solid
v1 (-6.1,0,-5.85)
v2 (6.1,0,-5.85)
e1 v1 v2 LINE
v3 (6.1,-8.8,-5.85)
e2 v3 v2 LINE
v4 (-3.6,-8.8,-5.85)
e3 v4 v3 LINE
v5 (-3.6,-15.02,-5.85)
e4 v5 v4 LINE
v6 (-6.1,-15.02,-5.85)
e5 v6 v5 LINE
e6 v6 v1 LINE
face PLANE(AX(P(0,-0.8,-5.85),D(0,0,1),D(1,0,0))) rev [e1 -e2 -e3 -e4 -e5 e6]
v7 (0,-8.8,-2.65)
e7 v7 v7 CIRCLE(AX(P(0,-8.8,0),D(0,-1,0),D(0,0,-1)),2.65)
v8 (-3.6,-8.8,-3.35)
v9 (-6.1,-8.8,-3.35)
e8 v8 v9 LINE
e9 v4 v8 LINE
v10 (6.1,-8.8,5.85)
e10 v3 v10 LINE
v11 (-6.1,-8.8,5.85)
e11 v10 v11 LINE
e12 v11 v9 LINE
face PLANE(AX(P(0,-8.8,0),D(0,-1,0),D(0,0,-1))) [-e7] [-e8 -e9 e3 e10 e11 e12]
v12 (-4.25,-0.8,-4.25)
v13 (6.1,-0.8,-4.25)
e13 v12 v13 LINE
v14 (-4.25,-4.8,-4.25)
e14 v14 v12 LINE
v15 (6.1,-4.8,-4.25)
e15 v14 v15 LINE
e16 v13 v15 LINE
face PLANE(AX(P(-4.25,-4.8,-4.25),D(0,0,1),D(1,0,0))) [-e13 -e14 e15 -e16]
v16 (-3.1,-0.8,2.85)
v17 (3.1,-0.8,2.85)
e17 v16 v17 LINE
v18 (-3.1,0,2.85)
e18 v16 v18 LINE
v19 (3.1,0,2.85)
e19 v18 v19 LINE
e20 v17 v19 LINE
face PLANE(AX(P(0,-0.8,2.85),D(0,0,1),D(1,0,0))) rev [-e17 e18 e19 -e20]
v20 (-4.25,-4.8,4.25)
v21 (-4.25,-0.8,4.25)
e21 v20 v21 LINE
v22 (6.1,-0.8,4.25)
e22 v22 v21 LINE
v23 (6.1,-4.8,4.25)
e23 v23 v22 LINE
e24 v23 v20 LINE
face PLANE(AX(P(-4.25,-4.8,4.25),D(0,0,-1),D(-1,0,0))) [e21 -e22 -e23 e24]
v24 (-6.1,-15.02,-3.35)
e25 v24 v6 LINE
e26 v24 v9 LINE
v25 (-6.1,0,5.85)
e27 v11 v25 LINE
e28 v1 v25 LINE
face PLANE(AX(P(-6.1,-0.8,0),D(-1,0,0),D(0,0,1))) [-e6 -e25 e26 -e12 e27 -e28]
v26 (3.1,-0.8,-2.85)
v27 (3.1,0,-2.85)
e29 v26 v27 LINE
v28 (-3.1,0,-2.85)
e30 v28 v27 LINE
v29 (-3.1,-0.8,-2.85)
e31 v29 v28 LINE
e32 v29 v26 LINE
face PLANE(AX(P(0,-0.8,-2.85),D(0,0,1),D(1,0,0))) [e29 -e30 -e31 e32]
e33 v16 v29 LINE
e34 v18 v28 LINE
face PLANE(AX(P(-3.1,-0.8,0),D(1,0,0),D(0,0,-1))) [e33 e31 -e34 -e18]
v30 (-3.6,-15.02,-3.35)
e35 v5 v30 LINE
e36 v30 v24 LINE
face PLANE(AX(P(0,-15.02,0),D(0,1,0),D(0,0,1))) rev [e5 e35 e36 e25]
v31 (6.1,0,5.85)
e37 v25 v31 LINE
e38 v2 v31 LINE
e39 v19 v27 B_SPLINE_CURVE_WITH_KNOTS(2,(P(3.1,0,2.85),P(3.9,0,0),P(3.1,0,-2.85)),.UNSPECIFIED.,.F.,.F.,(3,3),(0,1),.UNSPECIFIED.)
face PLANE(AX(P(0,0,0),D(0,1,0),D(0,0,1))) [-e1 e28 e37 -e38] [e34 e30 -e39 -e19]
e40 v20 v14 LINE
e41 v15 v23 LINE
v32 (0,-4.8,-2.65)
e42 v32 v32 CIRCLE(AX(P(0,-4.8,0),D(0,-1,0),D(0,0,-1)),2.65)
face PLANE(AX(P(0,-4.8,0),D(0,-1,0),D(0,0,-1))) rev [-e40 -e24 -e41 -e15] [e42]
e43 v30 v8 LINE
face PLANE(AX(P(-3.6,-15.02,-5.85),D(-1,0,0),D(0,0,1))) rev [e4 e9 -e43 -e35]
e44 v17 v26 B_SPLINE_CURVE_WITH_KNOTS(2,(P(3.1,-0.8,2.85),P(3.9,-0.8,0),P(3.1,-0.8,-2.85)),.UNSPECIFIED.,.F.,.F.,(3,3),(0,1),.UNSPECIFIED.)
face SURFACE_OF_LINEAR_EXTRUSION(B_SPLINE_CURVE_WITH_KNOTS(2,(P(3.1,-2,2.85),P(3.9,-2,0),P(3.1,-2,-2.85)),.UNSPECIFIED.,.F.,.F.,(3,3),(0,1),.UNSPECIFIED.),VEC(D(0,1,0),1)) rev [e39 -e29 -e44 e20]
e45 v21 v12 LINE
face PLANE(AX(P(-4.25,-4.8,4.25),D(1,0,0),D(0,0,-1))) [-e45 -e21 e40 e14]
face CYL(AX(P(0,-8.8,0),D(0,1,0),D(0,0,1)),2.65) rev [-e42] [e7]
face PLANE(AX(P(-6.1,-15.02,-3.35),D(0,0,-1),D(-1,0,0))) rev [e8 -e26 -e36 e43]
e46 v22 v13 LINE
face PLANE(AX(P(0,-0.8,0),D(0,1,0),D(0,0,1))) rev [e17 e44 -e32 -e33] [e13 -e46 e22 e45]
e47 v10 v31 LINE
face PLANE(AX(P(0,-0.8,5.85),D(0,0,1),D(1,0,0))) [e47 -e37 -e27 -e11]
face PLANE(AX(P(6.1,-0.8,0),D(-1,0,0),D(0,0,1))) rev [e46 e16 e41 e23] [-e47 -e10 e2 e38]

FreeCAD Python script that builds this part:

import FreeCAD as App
import Part
import Sketcher

V = App.Vector
Q = App.Units.Quantity

doc = App.newDocument("Part")
params = doc.addObject("Spreadsheet::Sheet", "Params")
for row, (alias, value) in enumerate([
    ("sketch1_width", "12.2 mm"),
    ("sketch1_width2", "6.2 mm"),
    ("sketch1_height", "11.7 mm"),
    ("sketch1_height2", "5.7 mm"),
    ("pad1_length", "0.8 mm"),
    ("sketch2_width", "12.2 mm"),
    ("sketch2_width2", "8.5 mm"),
    ("sketch2_height", "11.7 mm"),
    ("pad2_length", "4 mm"),
    ("sketch3_diameter", "5.3 mm"),
    ("sketch3_width", "12.2 mm"),
    ("sketch3_height", "11.7 mm"),
    ("pad3_length", "4 mm"),
    ("sketch4_width", "2.5 mm"),
    ("pad4_length", "6.22 mm"),
    ("sketch5_width", "4 mm"),
    ("sketch5_height", "8.5 mm"),
    ("pocket1_length", "6.22 mm"),
    ("pocket2_length", "2 mm"),
], start=1):
    params.set(f"A{row}", alias)
    params.set(f"B{row}", "=" + value)
    params.setAlias(f"B{row}", alias)

body = doc.addObject("PartDesign::Body", "Body")

sketch1 = doc.addObject("Sketcher::SketchObject", "Sketch")
body.addObject(sketch1)
sketch1.AttachmentSupport = (doc.XZ_Plane, [""])
sketch1.MapMode = "FlatFace"
sketch1.addGeometry([
    Part.LineSegment(V(-6, -6, 0), V(-6, 6, 0)),
    Part.LineSegment(V(-6, 6, 0), V(6, 6, 0)),
    Part.LineSegment(V(6, 6, 0), V(6, -6, 0)),
    Part.LineSegment(V(6, -6, 0), V(-6, -6, 0)),
    Part.LineSegment(V(3, 3, 0), V(-3, 3, 0)),
    Part.LineSegment(V(-3, 3, 0), V(-3, -3, 0)),
    Part.LineSegment(V(-3, -3, 0), V(3, -3, 0)),
    Part.LineSegment(V(3, -3, 0), V(3, 3, 0)),
], False)
sketch1.addConstraint([
    Sketcher.Constraint("Coincident", 0, 2, 1, 1),
    Sketcher.Constraint("Coincident", 1, 2, 2, 1),
    Sketcher.Constraint("Coincident", 2, 2, 3, 1),
    Sketcher.Constraint("Coincident", 3, 2, 0, 1),
    Sketcher.Constraint("Coincident", 4, 2, 5, 1),
    Sketcher.Constraint("Coincident", 5, 2, 6, 1),
    Sketcher.Constraint("Coincident", 6, 2, 7, 1),
    Sketcher.Constraint("Coincident", 7, 2, 4, 1),
    Sketcher.Constraint("Vertical", 0),
    Sketcher.Constraint("Horizontal", 1),
    Sketcher.Constraint("Vertical", 2),
    Sketcher.Constraint("Horizontal", 3),
    Sketcher.Constraint("Horizontal", 4),
    Sketcher.Constraint("Vertical", 5),
    Sketcher.Constraint("Horizontal", 6),
    Sketcher.Constraint("Vertical", 7),
    Sketcher.Constraint("Symmetric", 0, 2, 2, 2, -1, 1),
    Sketcher.Constraint("Symmetric", 4, 2, 6, 2, -1, 1),
    Sketcher.Constraint("DistanceX", 1, 1, 1, 2, Q("12.2 mm")),
    Sketcher.Constraint("DistanceX", 4, 2, 4, 1, Q("6.2 mm")),
    Sketcher.Constraint("DistanceY", 0, 1, 0, 2, Q("11.7 mm")),
    Sketcher.Constraint("DistanceY", 5, 2, 5, 1, Q("5.7 mm")),
])
sketch1.setExpression("Constraints[18]", "Params.sketch1_width")
sketch1.setExpression("Constraints[19]", "Params.sketch1_width2")
sketch1.setExpression("Constraints[20]", "Params.sketch1_height")
sketch1.setExpression("Constraints[21]", "Params.sketch1_height2")
pad1 = doc.addObject("PartDesign::Pad", "Pad")
body.addObject(pad1)
pad1.Profile = sketch1
pad1.setExpression("Length", "Params.pad1_length")

sketch2 = doc.addObject("Sketcher::SketchObject", "Sketch001")
body.addObject(sketch2)
sketch2.AttachmentSupport = (doc.XZ_Plane, [""])
sketch2.MapMode = "FlatFace"
sketch2.AttachmentOffset = App.Placement(V(0, 0, 0.8), App.Rotation())
sketch2.addGeometry([
    Part.LineSegment(V(-6, 6, 0), V(-6, -6, 0)),
    Part.LineSegment(V(-6, -6, 0), V(6, -6, 0)),
    Part.LineSegment(V(6, -6, 0), V(6, 6, 0)),
    Part.LineSegment(V(6, 6, 0), V(-6, 6, 0)),
    Part.LineSegment(V(4, -4, 0), V(-4, -4, 0)),
    Part.LineSegment(V(-4, -4, 0), V(-4, 4, 0)),
    Part.LineSegment(V(-4, 4, 0), V(4, 4, 0)),
    Part.LineSegment(V(4, 4, 0), V(4, -4, 0)),
], False)
sketch2.addConstraint([
    Sketcher.Constraint("Coincident", 0, 2, 1, 1),
    Sketcher.Constraint("Coincident", 1, 2, 2, 1),
    Sketcher.Constraint("Coincident", 2, 2, 3, 1),
    Sketcher.Constraint("Coincident", 3, 2, 0, 1),
    Sketcher.Constraint("Coincident", 4, 2, 5, 1),
    Sketcher.Constraint("Coincident", 5, 2, 6, 1),
    Sketcher.Constraint("Coincident", 6, 2, 7, 1),
    Sketcher.Constraint("Coincident", 7, 2, 4, 1),
    Sketcher.Constraint("Vertical", 0),
    Sketcher.Constraint("Horizontal", 1),
    Sketcher.Constraint("Vertical", 2),
    Sketcher.Constraint("Horizontal", 3),
    Sketcher.Constraint("Horizontal", 4),
    Sketcher.Constraint("Vertical", 5),
    Sketcher.Constraint("Horizontal", 6),
    Sketcher.Constraint("Vertical", 7),
    Sketcher.Constraint("Symmetric", 0, 2, 2, 2, -1, 1),
    Sketcher.Constraint("Symmetric", 4, 2, 6, 2, -1, 1),
    Sketcher.Constraint("Equal", 6, 5),
    Sketcher.Constraint("DistanceX", 1, 1, 1, 2, Q("12.2 mm")),
    Sketcher.Constraint("DistanceX", 4, 2, 4, 1, Q("8.5 mm")),
    Sketcher.Constraint("DistanceY", 0, 2, 0, 1, Q("11.7 mm")),
])
sketch2.setExpression("Constraints[19]", "Params.sketch2_width")
sketch2.setExpression("Constraints[20]", "Params.sketch2_width2")
sketch2.setExpression("Constraints[21]", "Params.sketch2_height")
pad2 = doc.addObject("PartDesign::Pad", "Pad001")
body.addObject(pad2)
pad2.Profile = sketch2
pad2.setExpression("Length", "Params.pad2_length")

sketch3 = doc.addObject("Sketcher::SketchObject", "Sketch002")
body.addObject(sketch3)
sketch3.AttachmentSupport = (doc.XZ_Plane, [""])
sketch3.MapMode = "FlatFace"
sketch3.AttachmentOffset = App.Placement(V(0, 0, 4.8), App.Rotation())
sketch3.addGeometry([
    Part.LineSegment(V(-6.1, 5.8, 0), V(-6.1, -5.8, 0)),
    Part.LineSegment(V(-6.1, -5.8, 0), V(6.1, -5.8, 0)),
    Part.LineSegment(V(6.1, -5.8, 0), V(6.1, 5.8, 0)),
    Part.LineSegment(V(6.1, 5.8, 0), V(-6.1, 5.8, 0)),
    Part.Circle(V(0, 0, 0), V(0, 0, 1), 2.6),
], False)
sketch3.addConstraint([
    Sketcher.Constraint("Coincident", 0, 2, 1, 1),
    Sketcher.Constraint("Coincident", 1, 2, 2, 1),
    Sketcher.Constraint("Coincident", 2, 2, 3, 1),
    Sketcher.Constraint("Coincident", 3, 2, 0, 1),
    Sketcher.Constraint("Vertical", 0),
    Sketcher.Constraint("Horizontal", 1),
    Sketcher.Constraint("Vertical", 2),
    Sketcher.Constraint("Horizontal", 3),
    Sketcher.Constraint("Coincident", 4, 3, -1, 1),
    Sketcher.Constraint("Symmetric", 0, 2, 2, 2, -1, 1),
    Sketcher.Constraint("Diameter", 4, Q("5.3 mm")),
    Sketcher.Constraint("DistanceX", 1, 1, 1, 2, Q("12.2 mm")),
    Sketcher.Constraint("DistanceY", 0, 2, 0, 1, Q("11.7 mm")),
])
sketch3.setExpression("Constraints[10]", "Params.sketch3_diameter")
sketch3.setExpression("Constraints[11]", "Params.sketch3_width")
sketch3.setExpression("Constraints[12]", "Params.sketch3_height")
pad3 = doc.addObject("PartDesign::Pad", "Pad002")
body.addObject(pad3)
pad3.Profile = sketch3
pad3.setExpression("Length", "Params.pad3_length")

sketch4 = doc.addObject("Sketcher::SketchObject", "Sketch003")
body.addObject(sketch4)
sketch4.AttachmentSupport = (doc.XZ_Plane, [""])
sketch4.MapMode = "FlatFace"
sketch4.AttachmentOffset = App.Placement(V(0, 0, 8.8), App.Rotation())
sketch4.addGeometry([
    Part.LineSegment(V(-6.1, -3.4, 0), V(-6.1, -5.8, 0)),
    Part.LineSegment(V(-6.1, -5.8, 0), V(-3.6, -5.8, 0)),
    Part.LineSegment(V(-3.6, -5.8, 0), V(-3.6, -3.4, 0)),
    Part.LineSegment(V(-3.6, -3.4, 0), V(-6.1, -3.4, 0)),
], False)
sketch4.addConstraint([
    Sketcher.Constraint("Coincident", 0, 2, 1, 1),
    Sketcher.Constraint("Coincident", 1, 2, 2, 1),
    Sketcher.Constraint("Coincident", 2, 2, 3, 1),
    Sketcher.Constraint("Coincident", 3, 2, 0, 1),
    Sketcher.Constraint("Vertical", 0),
    Sketcher.Constraint("Horizontal", 1),
    Sketcher.Constraint("Vertical", 2),
    Sketcher.Constraint("Horizontal", 3),
    Sketcher.Constraint("Equal", 3, 0),
    Sketcher.Constraint("DistanceX", 1, 1, 1, 2, Q("2.5 mm")),
    Sketcher.Constraint("DistanceX", 0, 2, -1, 1, Q("6.1 mm")),
    Sketcher.Constraint("DistanceY", 0, 2, -1, 1, Q("5.85 mm")),
])
sketch4.setExpression("Constraints[9]", "Params.sketch4_width")
pad4 = doc.addObject("PartDesign::Pad", "Pad003")
body.addObject(pad4)
pad4.Profile = sketch4
pad4.setExpression("Length", "Params.pad4_length")

sketch5 = doc.addObject("Sketcher::SketchObject", "Sketch004")
body.addObject(sketch5)
sketch5.AttachmentSupport = (doc.YZ_Plane, [""])
sketch5.MapMode = "FlatFace"
sketch5.AttachmentOffset = App.Placement(V(0, 0, 4.25), App.Rotation())
sketch5.addGeometry([
    Part.LineSegment(V(-0.8, -4.2, 0), V(-4.8, -4.2, 0)),
    Part.LineSegment(V(-4.8, -4.2, 0), V(-4.8, 4.2, 0)),
    Part.LineSegment(V(-4.8, 4.2, 0), V(-0.8, 4.2, 0)),
    Part.LineSegment(V(-0.8, 4.2, 0), V(-0.8, -4.2, 0)),
], False)
sketch5.addConstraint([
    Sketcher.Constraint("Coincident", 0, 2, 1, 1),
    Sketcher.Constraint("Coincident", 1, 2, 2, 1),
    Sketcher.Constraint("Coincident", 2, 2, 3, 1),
    Sketcher.Constraint("Coincident", 3, 2, 0, 1),
    Sketcher.Constraint("Horizontal", 0),
    Sketcher.Constraint("Vertical", 1),
    Sketcher.Constraint("Horizontal", 2),
    Sketcher.Constraint("Vertical", 3),
    Sketcher.Constraint("DistanceX", 0, 2, 0, 1, Q("4 mm")),
    Sketcher.Constraint("DistanceY", 1, 1, 1, 2, Q("8.5 mm")),
    Sketcher.Constraint("DistanceX", 0, 2, -1, 1, Q("4.8 mm")),
    Sketcher.Constraint("DistanceY", 0, 2, -1, 1, Q("4.25 mm")),
])
sketch5.setExpression("Constraints[8]", "Params.sketch5_width")
sketch5.setExpression("Constraints[9]", "Params.sketch5_height")
pocket1 = doc.addObject("PartDesign::Pocket", "Pocket")
body.addObject(pocket1)
pocket1.Profile = sketch5
pocket1.setExpression("Length", "Params.pocket1_length")
pocket1.Reversed = True

sketch6 = doc.addObject("Sketcher::SketchObject", "Sketch005")
body.addObject(sketch6)
sketch6.AttachmentSupport = (doc.XZ_Plane, [""])
sketch6.MapMode = "FlatFace"
sketch6.addGeometry([
    Part.LineSegment(V(3.1, -2.85, 0), V(3.1, 2.85, 0)),
    Part.BSplineCurve([V(3.1, -2.85, 0), V(3.9, 0, 0), V(3.1, 2.85, 0)], [3, 3], [0, 1], False, 2, [1, 1, 1], False),
], False)
sketch6.addConstraint([
    Sketcher.Constraint("Block", 1),
    Sketcher.Constraint("Coincident", 0, 1, 1, 1),
    Sketcher.Constraint("Coincident", 1, 2, 0, 2),
])
pocket2 = doc.addObject("PartDesign::Pocket", "Pocket001")
body.addObject(pocket2)
pocket2.Profile = sketch6
pocket2.setExpression("Length", "Params.pocket2_length")
pocket2.Reversed = True

doc.recompute()
